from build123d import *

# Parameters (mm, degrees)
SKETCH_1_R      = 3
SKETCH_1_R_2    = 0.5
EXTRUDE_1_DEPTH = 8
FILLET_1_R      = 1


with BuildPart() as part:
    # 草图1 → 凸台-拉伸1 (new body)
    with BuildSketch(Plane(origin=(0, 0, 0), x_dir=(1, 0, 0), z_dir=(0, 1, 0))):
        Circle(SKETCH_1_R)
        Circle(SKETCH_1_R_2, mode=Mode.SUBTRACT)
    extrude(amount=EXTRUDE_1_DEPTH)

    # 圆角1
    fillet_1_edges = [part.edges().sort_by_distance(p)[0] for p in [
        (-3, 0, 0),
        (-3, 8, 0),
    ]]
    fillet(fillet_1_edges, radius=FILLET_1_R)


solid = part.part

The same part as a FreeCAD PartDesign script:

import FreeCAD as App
import Part
import Sketcher


def edges_at(feature, points):
    """Names of the edges that pass closest to the given points."""
    edges = feature.Shape.Edges
    near = lambda p: min(range(len(edges)), key=lambda i: edges[i].distToShape(Part.Vertex(*p))[0])
    return sorted({f"Edge{near(p) + 1}" for p in points})

doc = App.newDocument("Part")
body = doc.addObject("PartDesign::Body", "Body")

# Sketch on XZ plane
sketch1 = doc.addObject("Sketcher::SketchObject", "Sketch")
body.addObject(sketch1)
sketch1.AttachmentSupport = (doc.XZ_Plane, [""])
sketch1.MapMode = "FlatFace"
sketch1.addGeometry([
    Part.Circle(App.Vector(0, 0, 0), App.Vector(0, 0, 1), 3),
    Part.Circle(App.Vector(0, 0, 0), App.Vector(0, 0, 1), 0.5),
], False)
sketch1.addConstraint([
    Sketcher.Constraint("Coincident", 0, 3, -1, 1),
    Sketcher.Constraint("Coincident", 1, 3, -1, 1),
    Sketcher.Constraint("Diameter", 0, 6.0),
    Sketcher.Constraint("Diameter", 1, 1.0),
])
pad1 = doc.addObject("PartDesign::Pad", "Pad")
body.addObject(pad1)
pad1.Profile = sketch1
pad1.Length = 8
pad1.Reversed = True
doc.recompute()

fillet = doc.addObject("PartDesign::Fillet", "Fillet")
body.addObject(fillet)
fillet.Base = (pad1, edges_at(pad1, [(-3, 0, 0), (-3, 8, 0)]))
fillet.Radius = 1

doc.recompute()
